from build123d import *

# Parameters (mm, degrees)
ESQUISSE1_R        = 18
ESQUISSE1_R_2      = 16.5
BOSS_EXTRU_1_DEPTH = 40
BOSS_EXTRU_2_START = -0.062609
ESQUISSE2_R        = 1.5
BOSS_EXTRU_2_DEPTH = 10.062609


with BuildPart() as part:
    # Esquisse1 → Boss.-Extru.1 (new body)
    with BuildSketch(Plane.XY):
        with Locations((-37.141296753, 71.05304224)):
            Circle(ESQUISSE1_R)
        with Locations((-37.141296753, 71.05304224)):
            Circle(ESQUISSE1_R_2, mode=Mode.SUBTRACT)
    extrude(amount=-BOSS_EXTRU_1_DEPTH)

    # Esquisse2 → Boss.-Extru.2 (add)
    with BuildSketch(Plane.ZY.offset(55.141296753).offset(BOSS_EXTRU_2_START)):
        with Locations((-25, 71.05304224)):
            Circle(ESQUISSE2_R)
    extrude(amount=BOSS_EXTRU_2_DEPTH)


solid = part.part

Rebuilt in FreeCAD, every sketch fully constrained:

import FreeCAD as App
import Part
import Sketcher
from FreeCAD import Vector
Q = App.Units.Quantity

doc = App.newDocument("Part")
body = doc.addObject("PartDesign::Body", "Body")

sketch1 = body.newObject("Sketcher::SketchObject", "Sketch")
sketch1.AttachmentSupport = (doc.getObject("XY_Plane"), [""])
sketch1.MapMode = "FlatFace"
sketch1.addGeometry(Part.Circle(Vector(-37, 71, 0), Vector(0, 0, 1), 18), False)
sketch1.addGeometry(Part.Circle(Vector(-37, 71, 0), Vector(0, 0, 1), 16), False)
sketch1.addConstraint(Sketcher.Constraint("Coincident", 1, 3, 0, 3))
sketch1.addConstraint(Sketcher.Constraint("Diameter", 0, Q("36 mm")))
sketch1.addConstraint(Sketcher.Constraint("Diameter", 1, Q("33 mm")))
sketch1.addConstraint(Sketcher.Constraint("DistanceX", 0, 3, -1, 1, Q("37.141297 mm")))
sketch1.addConstraint(Sketcher.Constraint("DistanceY", -1, 1, 0, 3, Q("71.053042 mm")))
pad1 = body.newObject("PartDesign::Pad", "Pad")
pad1.Profile = sketch1
pad1.Length = 40
pad1.Reversed = True

sketch2 = body.newObject("Sketcher::SketchObject", "Sketch001")
sketch2.AttachmentSupport = (doc.getObject("YZ_Plane"), [""])
sketch2.MapMode = "FlatFace"
sketch2.AttachmentOffset = App.Placement(Vector(0, 0, -55.078688), App.Rotation())
sketch2.addGeometry(Part.Circle(Vector(71.1, -25, 0), Vector(0, 0, 1), 1.5), False)
sketch2.addConstraint(Sketcher.Constraint("Diameter", 0, Q("3 mm")))
sketch2.addConstraint(Sketcher.Constraint("DistanceY", 0, 3, -1, 1, Q("25 mm")))
sketch2.addConstraint(Sketcher.Constraint("DistanceX", -1, 1, 0, 3, Q("71.053042 mm")))
pad2 = body.newObject("PartDesign::Pad", "Pad001")
pad2.Profile = sketch2
pad2.Length = 10.062609
pad2.Reversed = True

doc.recompute()
